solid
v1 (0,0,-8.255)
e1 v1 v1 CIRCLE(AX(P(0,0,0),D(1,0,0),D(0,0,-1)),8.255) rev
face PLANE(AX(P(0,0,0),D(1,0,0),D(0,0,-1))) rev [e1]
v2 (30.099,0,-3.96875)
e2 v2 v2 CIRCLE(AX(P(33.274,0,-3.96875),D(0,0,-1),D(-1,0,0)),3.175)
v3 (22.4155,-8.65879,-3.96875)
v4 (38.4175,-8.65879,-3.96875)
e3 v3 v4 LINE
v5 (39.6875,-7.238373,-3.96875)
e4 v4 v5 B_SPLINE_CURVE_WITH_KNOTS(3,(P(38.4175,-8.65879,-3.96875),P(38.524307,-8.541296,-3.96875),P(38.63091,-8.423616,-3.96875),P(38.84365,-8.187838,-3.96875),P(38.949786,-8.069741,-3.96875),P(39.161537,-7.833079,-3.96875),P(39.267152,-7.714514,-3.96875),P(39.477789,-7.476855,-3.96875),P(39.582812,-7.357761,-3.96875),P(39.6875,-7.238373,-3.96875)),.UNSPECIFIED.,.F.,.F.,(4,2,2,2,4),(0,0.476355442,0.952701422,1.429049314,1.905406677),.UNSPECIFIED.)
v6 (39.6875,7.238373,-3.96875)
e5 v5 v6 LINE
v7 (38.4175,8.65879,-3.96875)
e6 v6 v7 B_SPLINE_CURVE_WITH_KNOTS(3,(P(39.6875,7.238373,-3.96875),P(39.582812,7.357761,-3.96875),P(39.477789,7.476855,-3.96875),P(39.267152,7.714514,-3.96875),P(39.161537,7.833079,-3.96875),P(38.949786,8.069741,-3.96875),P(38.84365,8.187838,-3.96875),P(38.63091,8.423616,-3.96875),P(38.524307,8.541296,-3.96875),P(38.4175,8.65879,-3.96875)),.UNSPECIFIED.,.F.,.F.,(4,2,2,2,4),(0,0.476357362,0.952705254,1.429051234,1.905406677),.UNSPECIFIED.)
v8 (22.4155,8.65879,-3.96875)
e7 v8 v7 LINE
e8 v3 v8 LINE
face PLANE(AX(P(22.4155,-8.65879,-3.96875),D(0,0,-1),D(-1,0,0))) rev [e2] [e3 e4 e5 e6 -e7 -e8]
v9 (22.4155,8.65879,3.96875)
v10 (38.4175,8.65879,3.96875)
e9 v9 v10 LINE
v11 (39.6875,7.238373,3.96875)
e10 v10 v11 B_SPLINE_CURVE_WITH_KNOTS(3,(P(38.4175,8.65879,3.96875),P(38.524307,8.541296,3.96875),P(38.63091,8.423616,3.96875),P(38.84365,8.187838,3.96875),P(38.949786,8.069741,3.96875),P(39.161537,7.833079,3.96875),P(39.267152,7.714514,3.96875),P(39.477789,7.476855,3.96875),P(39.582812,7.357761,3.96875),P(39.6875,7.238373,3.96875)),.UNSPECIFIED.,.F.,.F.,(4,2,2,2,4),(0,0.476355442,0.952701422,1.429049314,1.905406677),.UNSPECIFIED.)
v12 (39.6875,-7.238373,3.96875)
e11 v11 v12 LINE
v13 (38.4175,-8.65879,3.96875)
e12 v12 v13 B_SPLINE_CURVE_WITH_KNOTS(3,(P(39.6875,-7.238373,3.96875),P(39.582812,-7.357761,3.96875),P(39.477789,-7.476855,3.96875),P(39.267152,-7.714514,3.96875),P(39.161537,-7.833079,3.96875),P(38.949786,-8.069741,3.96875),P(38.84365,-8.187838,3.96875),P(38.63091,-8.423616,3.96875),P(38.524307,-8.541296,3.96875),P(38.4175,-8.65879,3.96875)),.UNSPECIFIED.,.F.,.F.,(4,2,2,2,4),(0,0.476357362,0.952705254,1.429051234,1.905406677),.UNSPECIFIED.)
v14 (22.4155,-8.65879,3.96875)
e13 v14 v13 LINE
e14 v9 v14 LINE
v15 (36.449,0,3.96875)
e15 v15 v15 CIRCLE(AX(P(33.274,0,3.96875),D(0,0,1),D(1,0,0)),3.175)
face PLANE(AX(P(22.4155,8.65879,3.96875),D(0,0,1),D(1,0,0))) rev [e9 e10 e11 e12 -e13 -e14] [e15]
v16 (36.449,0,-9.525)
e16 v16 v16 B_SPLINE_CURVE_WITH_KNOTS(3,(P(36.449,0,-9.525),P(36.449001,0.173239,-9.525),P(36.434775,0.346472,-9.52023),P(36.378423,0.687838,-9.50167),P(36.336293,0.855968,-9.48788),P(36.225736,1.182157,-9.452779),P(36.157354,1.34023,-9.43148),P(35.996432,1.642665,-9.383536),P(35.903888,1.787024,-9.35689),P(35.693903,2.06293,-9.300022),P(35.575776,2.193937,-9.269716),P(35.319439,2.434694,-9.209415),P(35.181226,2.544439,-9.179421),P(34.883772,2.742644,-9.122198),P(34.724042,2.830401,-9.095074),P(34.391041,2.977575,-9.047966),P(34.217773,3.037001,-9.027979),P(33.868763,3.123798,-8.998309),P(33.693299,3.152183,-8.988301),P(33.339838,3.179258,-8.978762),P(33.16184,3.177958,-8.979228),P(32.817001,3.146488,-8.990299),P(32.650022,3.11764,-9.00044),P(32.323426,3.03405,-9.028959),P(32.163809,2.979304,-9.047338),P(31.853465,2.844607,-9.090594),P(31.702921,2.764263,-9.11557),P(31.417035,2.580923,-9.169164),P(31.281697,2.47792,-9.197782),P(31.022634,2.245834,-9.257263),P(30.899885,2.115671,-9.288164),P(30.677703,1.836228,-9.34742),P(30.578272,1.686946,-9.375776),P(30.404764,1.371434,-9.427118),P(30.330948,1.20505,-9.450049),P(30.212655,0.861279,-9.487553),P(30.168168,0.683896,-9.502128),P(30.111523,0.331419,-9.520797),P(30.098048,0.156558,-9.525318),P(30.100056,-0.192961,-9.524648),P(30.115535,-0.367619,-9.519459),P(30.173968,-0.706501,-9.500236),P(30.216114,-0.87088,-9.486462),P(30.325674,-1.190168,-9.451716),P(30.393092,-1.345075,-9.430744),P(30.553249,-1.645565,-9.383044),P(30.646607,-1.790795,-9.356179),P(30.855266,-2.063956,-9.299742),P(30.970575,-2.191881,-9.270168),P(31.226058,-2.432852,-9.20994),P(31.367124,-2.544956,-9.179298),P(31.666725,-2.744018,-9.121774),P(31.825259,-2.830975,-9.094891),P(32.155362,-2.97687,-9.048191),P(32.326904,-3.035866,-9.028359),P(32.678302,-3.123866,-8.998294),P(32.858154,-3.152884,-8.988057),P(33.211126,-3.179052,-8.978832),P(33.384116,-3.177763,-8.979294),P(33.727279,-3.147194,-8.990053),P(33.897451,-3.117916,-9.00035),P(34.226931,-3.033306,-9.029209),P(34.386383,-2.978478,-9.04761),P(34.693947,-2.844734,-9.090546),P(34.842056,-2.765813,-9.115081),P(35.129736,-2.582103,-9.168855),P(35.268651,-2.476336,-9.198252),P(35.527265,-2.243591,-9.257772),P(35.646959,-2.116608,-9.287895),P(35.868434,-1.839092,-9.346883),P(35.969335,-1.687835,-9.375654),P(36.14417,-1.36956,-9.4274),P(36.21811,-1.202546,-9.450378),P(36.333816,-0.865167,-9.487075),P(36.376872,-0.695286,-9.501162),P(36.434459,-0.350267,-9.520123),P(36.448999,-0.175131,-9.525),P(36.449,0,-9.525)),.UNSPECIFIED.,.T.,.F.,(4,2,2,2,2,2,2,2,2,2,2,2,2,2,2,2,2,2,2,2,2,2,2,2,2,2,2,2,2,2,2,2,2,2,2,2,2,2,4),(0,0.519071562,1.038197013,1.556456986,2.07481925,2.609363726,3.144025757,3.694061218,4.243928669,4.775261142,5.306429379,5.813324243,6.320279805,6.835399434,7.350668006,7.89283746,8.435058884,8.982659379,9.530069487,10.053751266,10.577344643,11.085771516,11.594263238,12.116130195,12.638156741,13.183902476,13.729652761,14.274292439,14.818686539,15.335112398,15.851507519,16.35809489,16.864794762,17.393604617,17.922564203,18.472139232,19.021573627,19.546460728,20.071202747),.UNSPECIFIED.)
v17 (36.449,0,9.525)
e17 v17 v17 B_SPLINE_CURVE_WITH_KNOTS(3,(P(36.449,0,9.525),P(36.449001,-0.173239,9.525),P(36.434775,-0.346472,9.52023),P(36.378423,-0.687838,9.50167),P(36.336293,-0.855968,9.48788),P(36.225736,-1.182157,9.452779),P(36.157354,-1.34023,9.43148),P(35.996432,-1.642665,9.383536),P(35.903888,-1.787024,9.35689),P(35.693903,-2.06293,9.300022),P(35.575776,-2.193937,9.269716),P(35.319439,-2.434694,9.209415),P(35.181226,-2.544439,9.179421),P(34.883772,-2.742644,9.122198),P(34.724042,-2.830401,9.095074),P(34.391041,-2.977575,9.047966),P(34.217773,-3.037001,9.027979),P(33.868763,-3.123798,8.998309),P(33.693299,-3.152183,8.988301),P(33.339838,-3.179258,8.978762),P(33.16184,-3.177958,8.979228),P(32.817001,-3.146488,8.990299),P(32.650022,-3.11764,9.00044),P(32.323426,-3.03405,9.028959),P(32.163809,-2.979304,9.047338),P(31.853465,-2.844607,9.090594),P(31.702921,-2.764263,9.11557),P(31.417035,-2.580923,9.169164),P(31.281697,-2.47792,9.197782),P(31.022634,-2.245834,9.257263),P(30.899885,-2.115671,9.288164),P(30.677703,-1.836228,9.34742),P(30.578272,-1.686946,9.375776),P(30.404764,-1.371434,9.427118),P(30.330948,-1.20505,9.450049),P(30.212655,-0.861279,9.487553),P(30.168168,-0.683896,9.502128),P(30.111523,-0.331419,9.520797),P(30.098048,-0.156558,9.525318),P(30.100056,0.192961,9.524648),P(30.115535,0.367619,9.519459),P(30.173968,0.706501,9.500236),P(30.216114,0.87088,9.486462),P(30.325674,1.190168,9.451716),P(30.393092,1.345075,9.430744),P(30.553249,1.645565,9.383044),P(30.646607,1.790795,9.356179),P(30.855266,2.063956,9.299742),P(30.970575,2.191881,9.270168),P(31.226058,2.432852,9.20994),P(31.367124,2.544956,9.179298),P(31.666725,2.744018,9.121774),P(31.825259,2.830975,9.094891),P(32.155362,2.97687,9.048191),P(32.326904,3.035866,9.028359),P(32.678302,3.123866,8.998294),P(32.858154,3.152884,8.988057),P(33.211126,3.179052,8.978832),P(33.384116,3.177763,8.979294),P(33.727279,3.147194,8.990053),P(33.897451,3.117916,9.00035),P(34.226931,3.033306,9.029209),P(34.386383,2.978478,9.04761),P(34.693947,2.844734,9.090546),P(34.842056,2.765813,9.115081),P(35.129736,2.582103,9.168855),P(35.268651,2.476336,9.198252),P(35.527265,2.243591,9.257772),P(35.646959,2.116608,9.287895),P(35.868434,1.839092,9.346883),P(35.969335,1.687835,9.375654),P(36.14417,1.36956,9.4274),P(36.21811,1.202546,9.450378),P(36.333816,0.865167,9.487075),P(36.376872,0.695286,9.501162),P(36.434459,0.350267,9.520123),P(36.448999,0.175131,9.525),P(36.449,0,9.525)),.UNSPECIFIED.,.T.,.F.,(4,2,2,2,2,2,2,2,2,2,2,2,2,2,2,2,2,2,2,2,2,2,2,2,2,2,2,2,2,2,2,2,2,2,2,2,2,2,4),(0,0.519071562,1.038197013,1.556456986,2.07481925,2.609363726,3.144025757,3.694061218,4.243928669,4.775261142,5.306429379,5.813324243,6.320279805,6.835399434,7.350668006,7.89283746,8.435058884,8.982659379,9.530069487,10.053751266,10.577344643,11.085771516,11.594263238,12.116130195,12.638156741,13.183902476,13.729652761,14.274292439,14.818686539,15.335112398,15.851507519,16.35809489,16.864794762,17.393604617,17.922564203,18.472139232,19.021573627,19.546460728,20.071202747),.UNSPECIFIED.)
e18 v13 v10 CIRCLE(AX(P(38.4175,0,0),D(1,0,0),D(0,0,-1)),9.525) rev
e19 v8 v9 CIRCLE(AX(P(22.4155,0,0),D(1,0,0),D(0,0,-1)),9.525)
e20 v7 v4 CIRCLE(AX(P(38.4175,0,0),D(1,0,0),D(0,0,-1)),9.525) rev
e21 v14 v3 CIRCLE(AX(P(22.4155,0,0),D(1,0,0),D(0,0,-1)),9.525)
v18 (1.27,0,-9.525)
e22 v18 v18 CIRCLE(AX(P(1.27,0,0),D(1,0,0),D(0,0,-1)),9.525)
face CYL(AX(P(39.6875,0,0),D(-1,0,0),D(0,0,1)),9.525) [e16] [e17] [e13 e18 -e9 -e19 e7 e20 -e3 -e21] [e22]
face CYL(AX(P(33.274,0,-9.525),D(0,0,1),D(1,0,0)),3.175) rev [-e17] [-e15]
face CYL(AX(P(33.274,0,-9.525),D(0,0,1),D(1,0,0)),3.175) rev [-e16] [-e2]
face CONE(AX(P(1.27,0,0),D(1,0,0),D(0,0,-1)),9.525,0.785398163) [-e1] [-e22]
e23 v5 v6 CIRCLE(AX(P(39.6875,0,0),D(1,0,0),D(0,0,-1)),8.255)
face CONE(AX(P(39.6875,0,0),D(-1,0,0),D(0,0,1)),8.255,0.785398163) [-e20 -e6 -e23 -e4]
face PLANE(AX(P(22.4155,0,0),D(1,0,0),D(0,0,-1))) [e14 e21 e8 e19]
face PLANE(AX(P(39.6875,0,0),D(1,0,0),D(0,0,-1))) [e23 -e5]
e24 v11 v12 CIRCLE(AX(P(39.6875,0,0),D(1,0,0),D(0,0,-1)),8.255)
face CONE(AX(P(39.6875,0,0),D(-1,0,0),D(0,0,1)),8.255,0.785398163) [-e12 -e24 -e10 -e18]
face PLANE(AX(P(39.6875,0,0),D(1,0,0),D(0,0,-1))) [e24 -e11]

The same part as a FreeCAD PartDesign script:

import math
import FreeCAD as App
import Part
import Sketcher

V = App.Vector
Q = App.Units.Quantity


def edges_at(feature, points):
    """Names of the edges that pass closest to the given points."""
    edges = feature.Shape.Edges
    near = lambda p: min(range(len(edges)), key=lambda i: edges[i].distToShape(Part.Vertex(*p))[0])
    return sorted({f"Edge{near(p) + 1}" for p in points})

doc = App.newDocument("Part")
params = doc.addObject("Spreadsheet::Sheet", "Params")
for row, (alias, value) in enumerate([
    ("sketch1_diameter", "0.75 in"),
    ("pad1_length", "1.5625 in"),
    ("sketch2_radius", "0.375 in"),
    ("pocket1_length", "0.68 in"),
    ("sketch3_diameter", "0.25 in"),
    ("chamfer_size", "0.05 in"),
], start=1):
    params.set(f"A{row}", alias)
    params.set(f"B{row}", "=" + value)
    params.setAlias(f"B{row}", alias)

body = doc.addObject("PartDesign::Body", "Body")

sketch1 = body.newObject("Sketcher::SketchObject", "Sketch")
sketch1.AttachmentSupport = (doc.getObject("YZ_Plane"), [""])
sketch1.MapMode = "FlatFace"
sketch1.addGeometry(Part.Circle(V(0, 0, 0), V(0, 0, 1), 10), False)
sketch1.addConstraint([
    Sketcher.Constraint("Coincident", 0, 3, -1, 1),
    Sketcher.Constraint("Diameter", 0, Q("0.75 in")),
])
sketch1.setExpression("Constraints[1]", "Params.sketch1_diameter")
pad1 = body.newObject("PartDesign::Pad", "Pad")
pad1.Profile = sketch1
pad1.setExpression("Length", "Params.pad1_length")

sketch2 = body.newObject("Sketcher::SketchObject", "Sketch001")
sketch2.AttachmentSupport = (doc.getObject("YZ_Plane"), [""])
sketch2.MapMode = "FlatFace"
sketch2.AttachmentOffset = App.Placement(V(0, 0, 0.8825 * 25.4), App.Rotation())
sketch2.addGeometry([
    Part.LineSegment(V(9, 4, 0), V(-9, 4, 0)),
    Part.ArcOfCircle(Part.Circle(V(0, 0, 0), V(0, 0, 1), 10), math.radians(155), math.radians(205)),
    Part.LineSegment(V(-9, -4, 0), V(9, -4, 0)),
    Part.ArcOfCircle(Part.Circle(V(0, 0, 0), V(0, 0, 1), 10), math.radians(-25), math.radians(25)),
], False)
sketch2.addConstraint([
    Sketcher.Constraint("Coincident", 0, 2, 1, 1),
    Sketcher.Constraint("Coincident", 1, 2, 2, 1),
    Sketcher.Constraint("Coincident", 2, 2, 3, 1),
    Sketcher.Constraint("Coincident", 3, 2, 0, 1),
    Sketcher.Constraint("Horizontal", 0),
    Sketcher.Constraint("Horizontal", 2),
    Sketcher.Constraint("Coincident", 1, 3, -1, 1),
    Sketcher.Constraint("Coincident", 3, 3, -1, 1),
    Sketcher.Constraint("Equal", 1, 3),
    Sketcher.Constraint("Vertical", 0, 2, 1, 2),
    Sketcher.Constraint("Radius", 1, Q("0.375 in")),
    Sketcher.Constraint("DistanceY", -1, 1, 0, 2, Q("0.15625 in")),
])
sketch2.setExpression("Constraints[10]", "Params.sketch2_radius")
pocket1 = body.newObject("PartDesign::Pocket", "Pocket")
pocket1.Profile = sketch2
pocket1.setExpression("Length", "Params.pocket1_length")
pocket1.Reversed = True

sketch3 = body.newObject("Sketcher::SketchObject", "Sketch002")
sketch3.AttachmentSupport = (doc.getObject("XY_Plane"), [""])
sketch3.MapMode = "FlatFace"
sketch3.addGeometry(Part.Circle(V(33.3, 0, 0), V(0, 0, 1), 3.2), False)
sketch3.addConstraint([
    Sketcher.Constraint("PointOnObject", 0, 3, -1),
    Sketcher.Constraint("Diameter", 0, Q("0.25 in")),
    Sketcher.Constraint("DistanceX", -1, 1, 0, 3, Q("1.31 in")),
])
sketch3.setExpression("Constraints[1]", "Params.sketch3_diameter")
pocket2 = body.newObject("PartDesign::Pocket", "Pocket001")
pocket2.Profile = sketch3
pocket2.Type = "ThroughAll"
pocket2.Midplane = True
doc.recompute()

chamfer = body.newObject("PartDesign::Chamfer", "Chamfer")
chamfer.Base = (pocket2, edges_at(pocket2, [(0, 0, -9.525), (39.688, -5.144, 8.016), (39.688, 0, -9.525)]))
chamfer.setExpression("Size", "Params.chamfer_size")

doc.recompute()
